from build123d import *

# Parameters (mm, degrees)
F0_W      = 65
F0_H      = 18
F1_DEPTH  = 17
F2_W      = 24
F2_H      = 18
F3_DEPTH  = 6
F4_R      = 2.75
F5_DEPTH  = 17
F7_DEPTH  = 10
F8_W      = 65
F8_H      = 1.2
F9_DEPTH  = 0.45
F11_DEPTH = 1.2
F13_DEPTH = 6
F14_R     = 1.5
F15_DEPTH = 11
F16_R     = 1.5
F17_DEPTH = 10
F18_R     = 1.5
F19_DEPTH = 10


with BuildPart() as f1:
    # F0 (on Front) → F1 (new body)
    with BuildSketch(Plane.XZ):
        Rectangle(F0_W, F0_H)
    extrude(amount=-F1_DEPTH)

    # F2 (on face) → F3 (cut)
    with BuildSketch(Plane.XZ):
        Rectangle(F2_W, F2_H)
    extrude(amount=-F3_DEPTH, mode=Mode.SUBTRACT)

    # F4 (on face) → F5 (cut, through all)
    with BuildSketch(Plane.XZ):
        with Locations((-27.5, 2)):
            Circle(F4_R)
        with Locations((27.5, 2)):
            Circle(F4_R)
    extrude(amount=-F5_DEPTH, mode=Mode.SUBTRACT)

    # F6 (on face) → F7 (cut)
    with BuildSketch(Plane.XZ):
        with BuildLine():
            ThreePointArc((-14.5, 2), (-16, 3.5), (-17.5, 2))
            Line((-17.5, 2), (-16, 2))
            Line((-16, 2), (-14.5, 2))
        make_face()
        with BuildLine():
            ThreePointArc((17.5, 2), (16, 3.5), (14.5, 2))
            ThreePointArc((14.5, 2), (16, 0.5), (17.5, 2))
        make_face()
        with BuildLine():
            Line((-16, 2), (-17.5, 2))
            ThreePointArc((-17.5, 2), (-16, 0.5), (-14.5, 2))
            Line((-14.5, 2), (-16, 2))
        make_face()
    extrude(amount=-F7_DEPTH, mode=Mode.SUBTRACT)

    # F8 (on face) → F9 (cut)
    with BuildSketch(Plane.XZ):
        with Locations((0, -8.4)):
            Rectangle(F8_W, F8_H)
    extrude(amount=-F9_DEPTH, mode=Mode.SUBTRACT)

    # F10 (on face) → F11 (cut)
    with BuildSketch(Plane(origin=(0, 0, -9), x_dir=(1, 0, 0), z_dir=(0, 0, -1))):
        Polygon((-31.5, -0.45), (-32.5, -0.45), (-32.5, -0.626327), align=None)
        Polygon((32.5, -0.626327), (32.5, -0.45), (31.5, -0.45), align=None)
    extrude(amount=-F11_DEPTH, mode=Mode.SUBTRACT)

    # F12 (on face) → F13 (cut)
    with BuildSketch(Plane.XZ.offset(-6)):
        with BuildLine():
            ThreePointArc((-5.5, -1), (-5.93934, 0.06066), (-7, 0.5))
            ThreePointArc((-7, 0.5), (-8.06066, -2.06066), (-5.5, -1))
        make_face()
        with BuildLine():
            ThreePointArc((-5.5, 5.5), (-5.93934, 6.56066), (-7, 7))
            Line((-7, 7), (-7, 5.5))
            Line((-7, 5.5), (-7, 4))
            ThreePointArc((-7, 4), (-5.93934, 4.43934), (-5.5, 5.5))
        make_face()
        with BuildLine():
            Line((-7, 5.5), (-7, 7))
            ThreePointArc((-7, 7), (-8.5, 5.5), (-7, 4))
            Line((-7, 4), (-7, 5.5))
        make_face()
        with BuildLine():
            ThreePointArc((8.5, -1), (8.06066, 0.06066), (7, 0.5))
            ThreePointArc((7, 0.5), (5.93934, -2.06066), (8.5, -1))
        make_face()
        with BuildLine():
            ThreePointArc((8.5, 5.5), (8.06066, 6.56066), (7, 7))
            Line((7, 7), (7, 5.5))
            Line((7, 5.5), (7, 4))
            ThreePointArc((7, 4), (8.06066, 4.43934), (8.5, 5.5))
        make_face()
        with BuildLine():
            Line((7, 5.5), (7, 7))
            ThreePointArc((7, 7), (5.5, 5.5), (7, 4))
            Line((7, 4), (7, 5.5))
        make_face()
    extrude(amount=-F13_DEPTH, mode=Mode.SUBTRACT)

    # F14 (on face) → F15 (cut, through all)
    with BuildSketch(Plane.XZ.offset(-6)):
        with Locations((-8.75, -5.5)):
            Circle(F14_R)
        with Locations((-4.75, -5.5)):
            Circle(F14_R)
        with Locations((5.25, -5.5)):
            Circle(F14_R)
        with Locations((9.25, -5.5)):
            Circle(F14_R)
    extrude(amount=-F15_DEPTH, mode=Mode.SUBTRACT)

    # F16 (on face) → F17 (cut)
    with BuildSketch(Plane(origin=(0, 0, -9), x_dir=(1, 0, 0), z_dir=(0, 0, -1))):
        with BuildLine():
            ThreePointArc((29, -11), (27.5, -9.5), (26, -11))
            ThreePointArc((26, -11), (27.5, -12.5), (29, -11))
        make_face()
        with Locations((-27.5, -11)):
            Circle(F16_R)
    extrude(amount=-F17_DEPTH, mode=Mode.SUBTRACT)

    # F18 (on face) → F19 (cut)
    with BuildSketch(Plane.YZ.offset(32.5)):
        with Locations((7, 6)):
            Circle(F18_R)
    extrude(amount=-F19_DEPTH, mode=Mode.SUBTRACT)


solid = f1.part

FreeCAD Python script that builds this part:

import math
import FreeCAD as App
import Part
import Sketcher
from FreeCAD import Vector
Q = App.Units.Quantity

doc = App.newDocument("Part")
body = doc.addObject("PartDesign::Body", "Body")

# Sketch on XZ plane
sketch1 = body.newObject("Sketcher::SketchObject", "Sketch")
sketch1.AttachmentSupport = (doc.getObject("XZ_Plane"), [""])
sketch1.MapMode = "FlatFace"
sketch1.addGeometry(Part.LineSegment(Vector(-32.5, 9, 0), Vector(-32.5, -9, 0)), False)
sketch1.addGeometry(Part.LineSegment(Vector(-32.5, -9, 0), Vector(32.5, -9, 0)), False)
sketch1.addGeometry(Part.LineSegment(Vector(32.5, -9, 0), Vector(32.5, 9, 0)), False)
sketch1.addGeometry(Part.LineSegment(Vector(32.5, 9, 0), Vector(-32.5, 9, 0)), False)
sketch1.addConstraint(Sketcher.Constraint("Coincident", 0, 2, 1, 1))
sketch1.addConstraint(Sketcher.Constraint("Coincident", 1, 2, 2, 1))
sketch1.addConstraint(Sketcher.Constraint("Coincident", 2, 2, 3, 1))
sketch1.addConstraint(Sketcher.Constraint("Coincident", 3, 2, 0, 1))
sketch1.addConstraint(Sketcher.Constraint("Vertical", 0))
sketch1.addConstraint(Sketcher.Constraint("Horizontal", 1))
sketch1.addConstraint(Sketcher.Constraint("Vertical", 2))
sketch1.addConstraint(Sketcher.Constraint("Horizontal", 3))
sketch1.addConstraint(Sketcher.Constraint("Symmetric", 0, 2, 2, 2, -1, 1))
sketch1.addConstraint(Sketcher.Constraint("DistanceX", 1, 1, 1, 2, 65.0))
sketch1.addConstraint(Sketcher.Constraint("DistanceY", 0, 2, 0, 1, 18.0))
pad1 = body.newObject("PartDesign::Pad", "Pad")
pad1.Profile = sketch1
pad1.Length = 17
pad1.Reversed = True

# Sketch on XZ plane
sketch2 = body.newObject("Sketcher::SketchObject", "Sketch001")
sketch2.AttachmentSupport = (doc.getObject("XZ_Plane"), [""])
sketch2.MapMode = "FlatFace"
sketch2.addGeometry(Part.LineSegment(Vector(-12, 9, 0), Vector(-12, -9, 0)), False)
sketch2.addGeometry(Part.LineSegment(Vector(-12, -9, 0), Vector(12, -9, 0)), False)
sketch2.addGeometry(Part.LineSegment(Vector(12, -9, 0), Vector(12, 9, 0)), False)
sketch2.addGeometry(Part.LineSegment(Vector(12, 9, 0), Vector(-12, 9, 0)), False)
sketch2.addConstraint(Sketcher.Constraint("Coincident", 0, 2, 1, 1))
sketch2.addConstraint(Sketcher.Constraint("Coincident", 1, 2, 2, 1))
sketch2.addConstraint(Sketcher.Constraint("Coincident", 2, 2, 3, 1))
sketch2.addConstraint(Sketcher.Constraint("Coincident", 3, 2, 0, 1))
sketch2.addConstraint(Sketcher.Constraint("Vertical", 0))
sketch2.addConstraint(Sketcher.Constraint("Horizontal", 1))
sketch2.addConstraint(Sketcher.Constraint("Vertical", 2))
sketch2.addConstraint(Sketcher.Constraint("Horizontal", 3))
sketch2.addConstraint(Sketcher.Constraint("Symmetric", 0, 2, 2, 2, -1, 1))
sketch2.addConstraint(Sketcher.Constraint("DistanceX", 1, 1, 1, 2, 24.0))
sketch2.addConstraint(Sketcher.Constraint("DistanceY", 0, 2, 0, 1, 18.0))
pocket1 = body.newObject("PartDesign::Pocket", "Pocket")
pocket1.Profile = sketch2
pocket1.Length = 6

# Sketch on XZ plane
sketch3 = body.newObject("Sketcher::SketchObject", "Sketch002")
sketch3.AttachmentSupport = (doc.getObject("XZ_Plane"), [""])
sketch3.MapMode = "FlatFace"
sketch3.addGeometry(Part.Circle(Vector(-27.5, 2, 0), Vector(0, 0, 1), 2.75), False)
sketch3.addGeometry(Part.Circle(Vector(27.5, 2, 0), Vector(0, 0, 1), 2.75), False)
sketch3.addConstraint(Sketcher.Constraint("Equal", 0, 1))
sketch3.addConstraint(Sketcher.Constraint("Symmetric", 0, 3, 1, 3, -2))
sketch3.addConstraint(Sketcher.Constraint("Diameter", 0, 5.5))
sketch3.addConstraint(Sketcher.Constraint("DistanceY", -1, 1, 0, 3, 2.0))
sketch3.addConstraint(Sketcher.Constraint("DistanceX", 0, 3, 1, 3, 55.0))
pocket2 = body.newObject("PartDesign::Pocket", "Pocket001")
pocket2.Profile = sketch3
pocket2.Type = "ThroughAll"

# Sketch on XZ plane
sketch4 = body.newObject("Sketcher::SketchObject", "Sketch003")
sketch4.AttachmentSupport = (doc.getObject("XZ_Plane"), [""])
sketch4.MapMode = "FlatFace"
sketch4.addGeometry(Part.Circle(Vector(-16, 2, 0), Vector(0, 0, 1), 1.5), False)
sketch4.addGeometry(Part.Circle(Vector(16, 2, 0), Vector(0, 0, 1), 1.5), False)
sketch4.addConstraint(Sketcher.Constraint("Equal", 0, 1))
sketch4.addConstraint(Sketcher.Constraint("Symmetric", 0, 3, 1, 3, -2))
sketch4.addConstraint(Sketcher.Constraint("Diameter", 0, 3.0))
sketch4.addConstraint(Sketcher.Constraint("DistanceX", 0, 3, -1, 1, 16.0))
sketch4.addConstraint(Sketcher.Constraint("DistanceY", -1, 1, 0, 3, 2.0))
pocket3 = body.newObject("PartDesign::Pocket", "Pocket002")
pocket3.Profile = sketch4
pocket3.Length = 10

# Sketch on XZ plane
sketch5 = body.newObject("Sketcher::SketchObject", "Sketch004")
sketch5.AttachmentSupport = (doc.getObject("XZ_Plane"), [""])
sketch5.MapMode = "FlatFace"
sketch5.addGeometry(Part.LineSegment(Vector(-32.5, -7.8, 0), Vector(-32.5, -9, 0)), False)
sketch5.addGeometry(Part.LineSegment(Vector(-32.5, -9, 0), Vector(32.5, -9, 0)), False)
sketch5.addGeometry(Part.LineSegment(Vector(32.5, -9, 0), Vector(32.5, -7.8, 0)), False)
sketch5.addGeometry(Part.LineSegment(Vector(32.5, -7.8, 0), Vector(-32.5, -7.8, 0)), False)
sketch5.addConstraint(Sketcher.Constraint("Coincident", 0, 2, 1, 1))
sketch5.addConstraint(Sketcher.Constraint("Coincident", 1, 2, 2, 1))
sketch5.addConstraint(Sketcher.Constraint("Coincident", 2, 2, 3, 1))
sketch5.addConstraint(Sketcher.Constraint("Coincident", 3, 2, 0, 1))
sketch5.addConstraint(Sketcher.Constraint("Vertical", 0))
sketch5.addConstraint(Sketcher.Constraint("Horizontal", 1))
sketch5.addConstraint(Sketcher.Constraint("Vertical", 2))
sketch5.addConstraint(Sketcher.Constraint("Horizontal", 3))
sketch5.addConstraint(Sketcher.Constraint("DistanceX", 1, 1, 1, 2, 65.0))
sketch5.addConstraint(Sketcher.Constraint("DistanceY", 0, 2, 0, 1, 1.2))
sketch5.addConstraint(Sketcher.Constraint("DistanceY", 0, 2, -1, 1, 9.0))
sketch5.addConstraint(Sketcher.Constraint("DistanceX", 0, 2, -1, 1, 32.5))
pocket4 = body.newObject("PartDesign::Pocket", "Pocket003")
pocket4.Profile = sketch5
pocket4.Length = 0.45

# Sketch on XY plane
sketch6 = body.newObject("Sketcher::SketchObject", "Sketch005")
sketch6.AttachmentSupport = (doc.getObject("XY_Plane"), [""])
sketch6.MapMode = "FlatFace"
sketch6.AttachmentOffset = App.Placement(Vector(0, 0, -9), App.Rotation())
sketch6.addGeometry(Part.LineSegment(Vector(-31.5, 0.45, 0), Vector(-32.5, 0.45, 0)), False)
sketch6.addGeometry(Part.LineSegment(Vector(-32.5, 0.45, 0), Vector(-32.5, 0.626327, 0)), False)
sketch6.addGeometry(Part.LineSegment(Vector(-32.5, 0.626327, 0), Vector(-31.5, 0.45, 0)), False)
sketch6.addGeometry(Part.LineSegment(Vector(32.5, 0.626327, 0), Vector(32.5, 0.45, 0)), False)
sketch6.addGeometry(Part.LineSegment(Vector(32.5, 0.45, 0), Vector(31.5, 0.45, 0)), False)
sketch6.addGeometry(Part.LineSegment(Vector(31.5, 0.45, 0), Vector(32.5, 0.626327, 0)), False)
sketch6.addConstraint(Sketcher.Constraint("Coincident", 0, 2, 1, 1))
sketch6.addConstraint(Sketcher.Constraint("Coincident", 1, 2, 2, 1))
sketch6.addConstraint(Sketcher.Constraint("Coincident", 2, 2, 0, 1))
sketch6.addConstraint(Sketcher.Constraint("Coincident", 3, 2, 4, 1))
sketch6.addConstraint(Sketcher.Constraint("Coincident", 4, 2, 5, 1))
sketch6.addConstraint(Sketcher.Constraint("Coincident", 5, 2, 3, 1))
sketch6.addConstraint(Sketcher.Constraint("Horizontal", 0))
sketch6.addConstraint(Sketcher.Constraint("Vertical", 1))
sketch6.addConstraint(Sketcher.Constraint("Vertical", 3))
sketch6.addConstraint(Sketcher.Constraint("Horizontal", 4))
sketch6.addConstraint(Sketcher.Constraint("Symmetric", 0, 2, 3, 2, -2))
sketch6.addConstraint(Sketcher.Constraint("Horizontal", 1, 2, 5, 2))
sketch6.addConstraint(Sketcher.Constraint("Equal", 0, 4))
sketch6.addConstraint(Sketcher.Constraint("DistanceX", 0, 2, 0, 1, 1.0))
sketch6.addConstraint(Sketcher.Constraint("Angle", 2, Q("-10.000001 deg")))
sketch6.addConstraint(Sketcher.Constraint("DistanceX", 2, 2, 3, 2, 64.0))
sketch6.addConstraint(Sketcher.Constraint("DistanceY", -1, 1, 0, 2, 0.45))
pocket5 = body.newObject("PartDesign::Pocket", "Pocket004")
pocket5.Profile = sketch6
pocket5.Length = 1.2
pocket5.Reversed = True

# Sketch on XZ plane
sketch7 = body.newObject("Sketcher::SketchObject", "Sketch006")
sketch7.AttachmentSupport = (doc.getObject("XZ_Plane"), [""])
sketch7.MapMode = "FlatFace"
sketch7.AttachmentOffset = App.Placement(Vector(0, 0, -6), App.Rotation())
sketch7.addGeometry(Part.ArcOfCircle(Part.Circle(Vector(-7.000001, -1.000001, 0), Vector(0, 0, 1), 1.500001), math.radians(0.000022), math.radians(89.999978)), False)
sketch7.addGeometry(Part.ArcOfCircle(Part.Circle(Vector(-7, -1, 0), Vector(0, 0, 1), 1.5), math.radians(90.000004), math.radians(359.999996)), False)
sketch7.addGeometry(Part.ArcOfCircle(Part.Circle(Vector(-7.000001, 5.499999, 0), Vector(0, 0, 1), 1.500001), math.radians(0.000022), math.radians(89.999978)), False)
sketch7.addGeometry(Part.ArcOfCircle(Part.Circle(Vector(-7, 5.5, 0), Vector(0, 0, 1), 1.5), math.radians(90), math.radians(270)), False)
sketch7.addGeometry(Part.ArcOfCircle(Part.Circle(Vector(-7.000001, 5.500001, 0), Vector(0, 0, 1), 1.500001), math.radians(-89.999978), math.radians(-0.000022)), False)
sketch7.addGeometry(Part.ArcOfCircle(Part.Circle(Vector(6.999999, -1.000001, 0), Vector(0, 0, 1), 1.500001), math.radians(0.000022), math.radians(89.999978)), False)
sketch7.addGeometry(Part.ArcOfCircle(Part.Circle(Vector(7, -1, 0), Vector(0, 0, 1), 1.5), math.radians(90.000004), math.radians(359.999996)), False)
sketch7.addGeometry(Part.ArcOfCircle(Part.Circle(Vector(6.999999, 5.499999, 0), Vector(0, 0, 1), 1.500001), math.radians(0.000022), math.radians(89.999978)), False)
sketch7.addGeometry(Part.ArcOfCircle(Part.Circle(Vector(7, 5.5, 0), Vector(0, 0, 1), 1.5), math.radians(90), math.radians(270)), False)
sketch7.addGeometry(Part.ArcOfCircle(Part.Circle(Vector(6.999999, 5.500001, 0), Vector(0, 0, 1), 1.500001), math.radians(-89.999978), math.radians(-0.000022)), False)
sketch7.addConstraint(Sketcher.Constraint("Tangent", 0, 1, 1, 2))
sketch7.addConstraint(Sketcher.Constraint("Coincident", 1, 1, 0, 2))
sketch7.addConstraint(Sketcher.Constraint("Tangent", 2, 2, 3, 1))
sketch7.addConstraint(Sketcher.Constraint("Tangent", 3, 2, 4, 1))
sketch7.addConstraint(Sketcher.Constraint("Tangent", 4, 2, 2, 1))
sketch7.addConstraint(Sketcher.Constraint("Tangent", 5, 1, 6, 2))
sketch7.addConstraint(Sketcher.Constraint("Coincident", 6, 1, 5, 2))
sketch7.addConstraint(Sketcher.Constraint("Tangent", 7, 2, 8, 1))
sketch7.addConstraint(Sketcher.Constraint("Tangent", 8, 2, 9, 1))
sketch7.addConstraint(Sketcher.Constraint("Tangent", 9, 2, 7, 1))
sketch7.addConstraint(Sketcher.Constraint("Equal", 1, 2))
sketch7.addConstraint(Sketcher.Constraint("Equal", 4, 5))
sketch7.addConstraint(Sketcher.Constraint("Equal", 6, 7))
sketch7.addConstraint(Sketcher.Constraint("Symmetric", 0, 3, 5, 3, -2))
sketch7.addConstraint(Sketcher.Constraint("Symmetric", 2, 3, 7, 3, -2))
sketch7.addConstraint(Sketcher.Constraint("Horizontal", 6, 3, 0, 1))
sketch7.addConstraint(Sketcher.Constraint("Horizontal", 9, 3, 4, 2))
sketch7.addConstraint(Sketcher.Constraint("Horizontal", 0, 1, 5, 1))
sketch7.addConstraint(Sketcher.Constraint("Horizontal", 4, 2, 9, 2))
sketch7.addConstraint(Sketcher.Constraint("Vertical", 1, 3, 2, 3))
sketch7.addConstraint(Sketcher.Constraint("Vertical", 4, 3, 1, 1))
sketch7.addConstraint(Sketcher.Constraint("Vertical", 1, 1, 2, 2))
sketch7.addConstraint(Sketcher.Constraint("Vertical", 2, 2, 3, 2))
sketch7.addConstraint(Sketcher.Constraint("Vertical", 9, 3, 6, 1))
sketch7.addConstraint(Sketcher.Constraint("Vertical", 6, 1, 7, 2))
sketch7.addConstraint(Sketcher.Constraint("Vertical", 7, 2, 8, 2))
sketch7.addConstraint(Sketcher.Constraint("Radius", 0, 1.500001))
sketch7.addConstraint(Sketcher.Constraint("DistanceX", 0, 3, -1, 1, 7.000001))
sketch7.addConstraint(Sketcher.Constraint("DistanceY", 0, 3, -1, 1, 1.000001))
sketch7.addConstraint(Sketcher.Constraint("DistanceY", -1, 1, 2, 2, 7.0))
pocket6 = body.newObject("PartDesign::Pocket", "Pocket005")
pocket6.Profile = sketch7
pocket6.Length = 6

# Sketch on XZ plane
sketch8 = body.newObject("Sketcher::SketchObject", "Sketch007")
sketch8.AttachmentSupport = (doc.getObject("XZ_Plane"), [""])
sketch8.MapMode = "FlatFace"
sketch8.AttachmentOffset = App.Placement(Vector(0, 0, -6), App.Rotation())
sketch8.addGeometry(Part.Circle(Vector(-8.75, -5.5, 0), Vector(0, 0, 1), 1.5), False)
sketch8.addGeometry(Part.Circle(Vector(-4.75, -5.5, 0), Vector(0, 0, 1), 1.5), False)
sketch8.addGeometry(Part.Circle(Vector(5.25, -5.5, 0), Vector(0, 0, 1), 1.5), False)
sketch8.addGeometry(Part.Circle(Vector(9.25, -5.5, 0), Vector(0, 0, 1), 1.5), False)
sketch8.addConstraint(Sketcher.Constraint("Equal", 0, 1))
sketch8.addConstraint(Sketcher.Constraint("Equal", 1, 2))
sketch8.addConstraint(Sketcher.Constraint("Equal", 2, 3))
sketch8.addConstraint(Sketcher.Constraint("Horizontal", 0, 3, 1, 3))
sketch8.addConstraint(Sketcher.Constraint("Horizontal", 1, 3, 2, 3))
sketch8.addConstraint(Sketcher.Constraint("Horizontal", 2, 3, 3, 3))
sketch8.addConstraint(Sketcher.Constraint("Diameter", 0, 3.0))
sketch8.addConstraint(Sketcher.Constraint("DistanceX", 0, 3, 1, 3, 4.0))
sketch8.addConstraint(Sketcher.Constraint("DistanceX", 1, 3, 2, 3, 10.0))
sketch8.addConstraint(Sketcher.Constraint("DistanceX", 2, 3, 3, 3, 4.0))
sketch8.addConstraint(Sketcher.Constraint("DistanceY", 0, 3, -1, 1, 5.5))
sketch8.addConstraint(Sketcher.Constraint("DistanceX", 0, 3, -1, 1, 8.75))
pocket7 = body.newObject("PartDesign::Pocket", "Pocket006")
pocket7.Profile = sketch8
pocket7.Type = "ThroughAll"

# Sketch on XY plane
sketch9 = body.newObject("Sketcher::SketchObject", "Sketch008")
sketch9.AttachmentSupport = (doc.getObject("XY_Plane"), [""])
sketch9.MapMode = "FlatFace"
sketch9.AttachmentOffset = App.Placement(Vector(0, 0, -9), App.Rotation())
sketch9.addGeometry(Part.Circle(Vector(27.5, 11, 0), Vector(0, 0, 1), 1.5), False)
sketch9.addGeometry(Part.Circle(Vector(-27.5, 11, 0), Vector(0, 0, 1), 1.5), False)
sketch9.addConstraint(Sketcher.Constraint("Equal", 0, 1))
sketch9.addConstraint(Sketcher.Constraint("Symmetric", 0, 3, 1, 3, -2))
sketch9.addConstraint(Sketcher.Constraint("Diameter", 0, 3.0))
sketch9.addConstraint(Sketcher.Constraint("DistanceY", -1, 1, 0, 3, 11.0))
sketch9.addConstraint(Sketcher.Constraint("DistanceX", 1, 3, 0, 3, 55.0))
pocket8 = body.newObject("PartDesign::Pocket", "Pocket007")
pocket8.Profile = sketch9
pocket8.Length = 10
pocket8.Reversed = True

# Sketch on YZ plane
sketch10 = body.newObject("Sketcher::SketchObject", "Sketch009")
sketch10.AttachmentSupport = (doc.getObject("YZ_Plane"), [""])
sketch10.MapMode = "FlatFace"
sketch10.AttachmentOffset = App.Placement(Vector(0, 0, 32.5), App.Rotation())
sketch10.addGeometry(Part.Circle(Vector(7, 6, 0), Vector(0, 0, 1), 1.5), False)
sketch10.addConstraint(Sketcher.Constraint("Diameter", 0, 3.0))
sketch10.addConstraint(Sketcher.Constraint("DistanceX", -1, 1, 0, 3, 7.0))
sketch10.addConstraint(Sketcher.Constraint("DistanceY", -1, 1, 0, 3, 6.0))
pocket9 = body.newObject("PartDesign::Pocket", "Pocket008")
pocket9.Profile = sketch10
pocket9.Length = 10

doc.recompute()
